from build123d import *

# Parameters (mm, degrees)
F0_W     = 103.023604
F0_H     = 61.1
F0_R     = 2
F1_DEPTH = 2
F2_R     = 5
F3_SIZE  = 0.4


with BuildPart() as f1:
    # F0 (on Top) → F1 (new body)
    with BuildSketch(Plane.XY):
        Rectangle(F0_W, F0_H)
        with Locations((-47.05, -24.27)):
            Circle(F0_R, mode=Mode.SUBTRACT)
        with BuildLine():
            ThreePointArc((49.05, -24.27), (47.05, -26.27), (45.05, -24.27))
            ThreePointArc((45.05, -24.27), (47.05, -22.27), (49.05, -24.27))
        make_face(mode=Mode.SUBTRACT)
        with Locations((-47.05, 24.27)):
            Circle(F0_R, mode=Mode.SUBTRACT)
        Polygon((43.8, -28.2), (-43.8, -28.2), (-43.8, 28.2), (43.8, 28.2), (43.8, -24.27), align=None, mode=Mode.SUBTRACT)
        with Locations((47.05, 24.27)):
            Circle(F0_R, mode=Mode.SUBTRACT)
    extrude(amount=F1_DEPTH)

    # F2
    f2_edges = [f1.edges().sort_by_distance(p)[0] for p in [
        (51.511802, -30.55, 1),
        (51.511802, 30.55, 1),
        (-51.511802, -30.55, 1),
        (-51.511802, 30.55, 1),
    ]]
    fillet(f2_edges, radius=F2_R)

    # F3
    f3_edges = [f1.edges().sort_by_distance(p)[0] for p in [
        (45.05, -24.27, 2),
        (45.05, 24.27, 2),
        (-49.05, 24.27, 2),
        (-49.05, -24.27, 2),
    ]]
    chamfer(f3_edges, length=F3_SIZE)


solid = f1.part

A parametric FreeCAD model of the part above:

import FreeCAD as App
import Part
import Sketcher
from FreeCAD import Vector


def edges_at(feature, points):
    """Names of the edges that pass closest to the given points."""
    edges = feature.Shape.Edges
    near = lambda p: min(range(len(edges)), key=lambda i: edges[i].distToShape(Part.Vertex(*p))[0])
    return sorted({f"Edge{near(p) + 1}" for p in points})

doc = App.newDocument("Part")
params = doc.addObject("Spreadsheet::Sheet", "Params")
for row, (alias, value) in enumerate([
    ("sketch1_diameter", "4 mm"),
    ("sketch1_width", "87.6 mm"),
    ("sketch1_height", "61.1 mm"),
    ("sketch1_height2", "56.4 mm"),
    ("pad1_length", "2 mm"),
    ("fillet_radius", "5 mm"),
    ("chamfer_size", "0.4 mm"),
], start=1):
    params.set(f"A{row}", alias)
    params.set(f"B{row}", "=" + value)
    params.setAlias(f"B{row}", alias)

body = doc.addObject("PartDesign::Body", "Body")

# Sketch on XY plane
sketch1 = body.newObject("Sketcher::SketchObject", "Sketch")
sketch1.AttachmentSupport = (doc.getObject("XY_Plane"), [""])
sketch1.MapMode = "FlatFace"
sketch1.addGeometry(Part.LineSegment(Vector(-51.5, 30.6, 0), Vector(-51.5, -30.6, 0)), False)
sketch1.addGeometry(Part.LineSegment(Vector(-51.5, -30.6, 0), Vector(51.5, -30.6, 0)), False)
sketch1.addGeometry(Part.LineSegment(Vector(51.5, -30.6, 0), Vector(51.5, 30.6, 0)), False)
sketch1.addGeometry(Part.LineSegment(Vector(51.5, 30.6, 0), Vector(-51.5, 30.6, 0)), False)
sketch1.addGeometry(Part.Circle(Vector(-47, -24.3, 0), Vector(0, 0, 1), 2), False)
sketch1.addGeometry(Part.Circle(Vector(47, -24.3, 0), Vector(0, 0, 1), 2), False)
sketch1.addGeometry(Part.Circle(Vector(-47, 24.3, 0), Vector(0, 0, 1), 2), False)
sketch1.addGeometry(Part.LineSegment(Vector(43.8, 28.2, 0), Vector(43.8, -28.2, 0)), False)
sketch1.addGeometry(Part.LineSegment(Vector(43.8, -28.2, 0), Vector(-43.8, -28.2, 0)), False)
sketch1.addGeometry(Part.LineSegment(Vector(-43.8, -28.2, 0), Vector(-43.8, 28.2, 0)), False)
sketch1.addGeometry(Part.LineSegment(Vector(-43.8, 28.2, 0), Vector(43.8, 28.2, 0)), False)
sketch1.addGeometry(Part.Circle(Vector(47, 24.3, 0), Vector(0, 0, 1), 2), False)
sketch1.addConstraint(Sketcher.Constraint("Coincident", 0, 2, 1, 1))
sketch1.addConstraint(Sketcher.Constraint("Coincident", 1, 2, 2, 1))
sketch1.addConstraint(Sketcher.Constraint("Coincident", 2, 2, 3, 1))
sketch1.addConstraint(Sketcher.Constraint("Coincident", 3, 2, 0, 1))
sketch1.addConstraint(Sketcher.Constraint("Coincident", 7, 2, 8, 1))
sketch1.addConstraint(Sketcher.Constraint("Coincident", 8, 2, 9, 1))
sketch1.addConstraint(Sketcher.Constraint("Coincident", 9, 2, 10, 1))
sketch1.addConstraint(Sketcher.Constraint("Coincident", 10, 2, 7, 1))
sketch1.addConstraint(Sketcher.Constraint("Vertical", 0))
sketch1.addConstraint(Sketcher.Constraint("Horizontal", 1))
sketch1.addConstraint(Sketcher.Constraint("Vertical", 2))
sketch1.addConstraint(Sketcher.Constraint("Horizontal", 3))
sketch1.addConstraint(Sketcher.Constraint("Vertical", 7))
sketch1.addConstraint(Sketcher.Constraint("Horizontal", 8))
sketch1.addConstraint(Sketcher.Constraint("Vertical", 9))
sketch1.addConstraint(Sketcher.Constraint("Horizontal", 10))
sketch1.addConstraint(Sketcher.Constraint("Equal", 4, 5))
sketch1.addConstraint(Sketcher.Constraint("Equal", 5, 6))
sketch1.addConstraint(Sketcher.Constraint("Equal", 6, 11))
sketch1.addConstraint(Sketcher.Constraint("Symmetric", 5, 3, 6, 3, -1, 1))
sketch1.addConstraint(Sketcher.Constraint("Symmetric", 4, 3, 11, 3, -1, 1))
sketch1.addConstraint(Sketcher.Constraint("Symmetric", 0, 2, 2, 2, -1, 1))
sketch1.addConstraint(Sketcher.Constraint("Symmetric", 7, 2, 9, 2, -1, 1))
sketch1.addConstraint(Sketcher.Constraint("Symmetric", 4, 3, 5, 3, -2))
sketch1.addConstraint(Sketcher.Constraint("Diameter", 4, 4.0))
sketch1.addConstraint(Sketcher.Constraint("DistanceX", 8, 2, 8, 1, 87.6))
sketch1.addConstraint(Sketcher.Constraint("DistanceY", 0, 2, 0, 1, 61.1))
sketch1.addConstraint(Sketcher.Constraint("DistanceY", 7, 2, 7, 1, 56.4))
sketch1.addConstraint(Sketcher.Constraint("DistanceX", 4, 3, 5, 3, 94.1))
sketch1.addConstraint(Sketcher.Constraint("DistanceY", 4, 3, -1, 1, 24.27))
sketch1.addConstraint(Sketcher.Constraint("DistanceX", 0, 2, 5, 3, 98.561802))
sketch1.setExpression("Constraints[24]", "Params.sketch1_diameter")
sketch1.setExpression("Constraints[25]", "Params.sketch1_width")
sketch1.setExpression("Constraints[26]", "Params.sketch1_height")
sketch1.setExpression("Constraints[27]", "Params.sketch1_height2")
pad1 = body.newObject("PartDesign::Pad", "Pad")
pad1.Profile = sketch1
pad1.setExpression("Length", "Params.pad1_length")
doc.recompute()

fillet = body.newObject("PartDesign::Fillet", "Fillet")
fillet.Base = (pad1, edges_at(pad1, [
    (51.512, -30.55, 1),
    (51.512, 30.55, 1),
    (-51.512, -30.55, 1),
    (-51.512, 30.55, 1),
]))
fillet.setExpression("Radius", "Params.fillet_radius")
doc.recompute()

chamfer = body.newObject("PartDesign::Chamfer", "Chamfer")
chamfer.Base = (fillet, edges_at(fillet, [
    (49.05, -24.27, 2),
    (45.05, 24.27, 2),
    (-49.05, 24.27, 2),
    (-49.05, -24.27, 2),
]))
chamfer.setExpression("Size", "Params.chamfer_size")

doc.recompute()
